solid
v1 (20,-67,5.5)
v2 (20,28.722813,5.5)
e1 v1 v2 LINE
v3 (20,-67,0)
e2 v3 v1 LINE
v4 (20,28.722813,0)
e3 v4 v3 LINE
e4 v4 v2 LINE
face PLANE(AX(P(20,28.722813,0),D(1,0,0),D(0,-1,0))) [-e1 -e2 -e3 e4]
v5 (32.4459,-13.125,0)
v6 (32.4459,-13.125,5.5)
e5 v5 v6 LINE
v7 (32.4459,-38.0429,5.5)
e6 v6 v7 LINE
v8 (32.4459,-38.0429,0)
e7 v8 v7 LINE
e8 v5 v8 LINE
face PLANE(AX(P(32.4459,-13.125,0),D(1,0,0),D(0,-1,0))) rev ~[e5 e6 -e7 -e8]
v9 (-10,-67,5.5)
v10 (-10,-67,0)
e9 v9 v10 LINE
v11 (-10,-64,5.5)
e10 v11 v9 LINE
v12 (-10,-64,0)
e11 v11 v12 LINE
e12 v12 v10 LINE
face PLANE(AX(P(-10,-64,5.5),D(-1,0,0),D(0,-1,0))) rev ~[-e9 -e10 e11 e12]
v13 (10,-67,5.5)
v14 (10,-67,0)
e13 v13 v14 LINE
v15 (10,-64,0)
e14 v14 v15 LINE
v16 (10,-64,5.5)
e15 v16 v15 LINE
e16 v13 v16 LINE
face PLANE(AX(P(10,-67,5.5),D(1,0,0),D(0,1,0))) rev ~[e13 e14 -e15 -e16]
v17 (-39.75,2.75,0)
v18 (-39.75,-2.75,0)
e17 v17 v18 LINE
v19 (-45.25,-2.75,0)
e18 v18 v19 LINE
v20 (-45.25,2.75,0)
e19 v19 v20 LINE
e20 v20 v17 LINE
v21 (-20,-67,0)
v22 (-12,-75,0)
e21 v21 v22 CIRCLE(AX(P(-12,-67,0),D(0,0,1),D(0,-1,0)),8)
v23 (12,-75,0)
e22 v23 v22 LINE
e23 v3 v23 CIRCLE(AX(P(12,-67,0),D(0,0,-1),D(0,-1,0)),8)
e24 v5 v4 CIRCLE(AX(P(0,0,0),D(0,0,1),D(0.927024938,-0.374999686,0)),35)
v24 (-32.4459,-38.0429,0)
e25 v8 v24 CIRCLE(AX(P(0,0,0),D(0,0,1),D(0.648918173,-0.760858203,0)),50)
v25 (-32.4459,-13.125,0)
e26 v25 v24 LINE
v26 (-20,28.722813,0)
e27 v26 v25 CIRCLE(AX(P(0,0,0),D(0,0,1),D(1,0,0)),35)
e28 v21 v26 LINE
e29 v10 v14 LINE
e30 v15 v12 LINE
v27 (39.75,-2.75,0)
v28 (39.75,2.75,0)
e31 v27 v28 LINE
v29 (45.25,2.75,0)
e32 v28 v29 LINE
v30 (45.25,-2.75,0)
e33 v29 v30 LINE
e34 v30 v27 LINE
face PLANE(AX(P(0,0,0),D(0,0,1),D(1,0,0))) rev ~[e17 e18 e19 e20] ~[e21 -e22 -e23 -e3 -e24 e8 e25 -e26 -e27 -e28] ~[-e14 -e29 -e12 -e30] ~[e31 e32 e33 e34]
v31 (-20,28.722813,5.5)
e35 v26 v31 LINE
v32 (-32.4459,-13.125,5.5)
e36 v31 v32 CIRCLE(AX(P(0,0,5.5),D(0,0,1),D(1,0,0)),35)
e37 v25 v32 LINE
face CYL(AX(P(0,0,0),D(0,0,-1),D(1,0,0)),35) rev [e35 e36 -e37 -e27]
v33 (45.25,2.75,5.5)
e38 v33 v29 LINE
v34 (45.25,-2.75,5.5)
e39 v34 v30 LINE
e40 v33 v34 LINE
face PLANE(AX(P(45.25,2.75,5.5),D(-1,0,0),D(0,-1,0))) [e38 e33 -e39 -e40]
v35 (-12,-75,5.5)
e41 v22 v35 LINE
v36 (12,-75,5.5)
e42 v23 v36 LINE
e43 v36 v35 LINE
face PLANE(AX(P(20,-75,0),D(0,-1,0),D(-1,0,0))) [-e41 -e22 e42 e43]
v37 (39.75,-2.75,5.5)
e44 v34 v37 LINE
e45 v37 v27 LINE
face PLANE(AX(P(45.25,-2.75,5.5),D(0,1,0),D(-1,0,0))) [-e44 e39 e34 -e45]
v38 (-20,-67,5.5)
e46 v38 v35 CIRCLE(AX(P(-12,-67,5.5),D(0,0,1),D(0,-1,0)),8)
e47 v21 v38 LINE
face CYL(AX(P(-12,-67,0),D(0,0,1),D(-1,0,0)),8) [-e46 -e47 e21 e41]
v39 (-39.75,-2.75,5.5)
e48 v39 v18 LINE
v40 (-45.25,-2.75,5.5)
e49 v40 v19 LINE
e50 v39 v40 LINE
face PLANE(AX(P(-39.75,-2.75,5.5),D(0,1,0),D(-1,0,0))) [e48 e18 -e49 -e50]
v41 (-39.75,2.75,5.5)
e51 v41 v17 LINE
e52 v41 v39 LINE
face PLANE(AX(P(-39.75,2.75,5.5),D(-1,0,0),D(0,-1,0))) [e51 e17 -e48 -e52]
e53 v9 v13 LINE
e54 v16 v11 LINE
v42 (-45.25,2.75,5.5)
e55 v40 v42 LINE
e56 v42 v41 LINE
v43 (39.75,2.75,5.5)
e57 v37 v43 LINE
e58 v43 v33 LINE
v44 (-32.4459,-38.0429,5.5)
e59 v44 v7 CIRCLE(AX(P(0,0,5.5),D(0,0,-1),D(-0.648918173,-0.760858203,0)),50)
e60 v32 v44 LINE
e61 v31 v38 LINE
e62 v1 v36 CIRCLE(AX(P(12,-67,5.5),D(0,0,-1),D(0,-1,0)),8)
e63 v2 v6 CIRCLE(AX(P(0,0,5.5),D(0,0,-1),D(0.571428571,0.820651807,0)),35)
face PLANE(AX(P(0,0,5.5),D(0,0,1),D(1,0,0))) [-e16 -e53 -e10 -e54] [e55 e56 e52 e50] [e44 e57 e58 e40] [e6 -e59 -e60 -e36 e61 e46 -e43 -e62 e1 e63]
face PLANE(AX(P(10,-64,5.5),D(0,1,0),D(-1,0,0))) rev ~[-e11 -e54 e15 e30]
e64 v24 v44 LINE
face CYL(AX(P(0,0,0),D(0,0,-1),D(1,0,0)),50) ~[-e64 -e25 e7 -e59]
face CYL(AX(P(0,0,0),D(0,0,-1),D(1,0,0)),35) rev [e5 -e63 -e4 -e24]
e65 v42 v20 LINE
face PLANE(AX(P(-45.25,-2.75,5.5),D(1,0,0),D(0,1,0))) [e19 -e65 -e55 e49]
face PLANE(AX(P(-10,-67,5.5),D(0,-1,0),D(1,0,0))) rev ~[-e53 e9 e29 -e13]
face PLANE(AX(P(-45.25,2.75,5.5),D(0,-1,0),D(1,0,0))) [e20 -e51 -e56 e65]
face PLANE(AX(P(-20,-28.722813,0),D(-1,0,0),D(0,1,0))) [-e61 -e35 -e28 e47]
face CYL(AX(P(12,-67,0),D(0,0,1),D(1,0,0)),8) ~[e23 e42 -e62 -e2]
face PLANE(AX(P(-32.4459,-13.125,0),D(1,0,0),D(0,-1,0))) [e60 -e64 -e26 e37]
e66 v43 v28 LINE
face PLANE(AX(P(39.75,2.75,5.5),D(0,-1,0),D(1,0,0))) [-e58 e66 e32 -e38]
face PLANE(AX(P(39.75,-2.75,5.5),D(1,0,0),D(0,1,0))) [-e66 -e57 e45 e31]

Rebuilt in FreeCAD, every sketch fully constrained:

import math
import FreeCAD as App
import Part
import Sketcher
from FreeCAD import Vector
Q = App.Units.Quantity


def edges_at(feature, points):
    """Names of the edges that pass closest to the given points."""
    edges = feature.Shape.Edges
    near = lambda p: min(range(len(edges)), key=lambda i: edges[i].distToShape(Part.Vertex(*p))[0])
    return sorted({f"Edge{near(p) + 1}" for p in points})


def add_polygon(sketch, points):
    """Adds a closed chain of lines whose ends are joined by coincident constraints."""
    first, n = sketch.GeometryCount, len(points)
    for a, b in zip(points, points[1:] + points[:1]):
        sketch.addGeometry(Part.LineSegment(App.Vector(*a, 0), App.Vector(*b, 0)), False)
    for i in range(n):
        sketch.addConstraint(Sketcher.Constraint("Coincident", first + i, 2, first + (i + 1) % n, 1))

doc = App.newDocument("Part")
params = doc.addObject("Spreadsheet::Sheet", "Params")
for row, (alias, value) in enumerate([
    ("sketch1_radius", "50 mm"),
    ("sketch1_radius2", "35 mm"),
    ("sketch1_width", "40 mm"),
    ("pad1_length", "5.5 mm"),
    ("fillet_radius", "8 mm"),
    ("sketch2_width", "20 mm"),
    ("sketch2_height", "3 mm"),
    ("pocket1_length", "5.5 mm"),
    ("sketch3_width", "5.5 mm"),
    ("pocket2_length", "10 mm"),
], start=1):
    params.set(f"A{row}", alias)
    params.set(f"B{row}", "=" + value)
    params.setAlias(f"B{row}", alias)

body = doc.addObject("PartDesign::Body", "Body")

# Sketch on XY plane
sketch1 = body.newObject("Sketcher::SketchObject", "Sketch")
sketch1.AttachmentSupport = (doc.getObject("XY_Plane"), [""])
sketch1.MapMode = "FlatFace"
sketch1.addGeometry([
    Part.ArcOfCircle(Part.Circle(Vector(0, 0, 0), Vector(0, 0, 1), 50), math.radians(-50), math.radians(230)),  # 0
    Part.LineSegment(Vector(-32, -38, 0), Vector(-32, -13, 0)),  # 1
    Part.ArcOfCircle(Part.Circle(Vector(0, 0, 0), Vector(0, 0, 1), 35), math.radians(125), math.radians(202)),  # 2
    Part.LineSegment(Vector(-20, 29, 0), Vector(-20, -75, 0)),  # 3
    Part.LineSegment(Vector(-20, -75, 0), Vector(20, -75, 0)),  # 4
    Part.LineSegment(Vector(20, -75, 0), Vector(20, 29, 0)),  # 5
    Part.ArcOfCircle(Part.Circle(Vector(0, 0, 0), Vector(0, 0, 1), 35), math.radians(-22), math.radians(55)),  # 6
    Part.LineSegment(Vector(32, -13, 0), Vector(32, -38, 0)),  # 7
], False)
sketch1.addConstraint([
    Sketcher.Constraint("Coincident", 0, 2, 1, 1),
    Sketcher.Constraint("Coincident", 1, 2, 2, 2),
    Sketcher.Constraint("Coincident", 2, 1, 3, 1),
    Sketcher.Constraint("Coincident", 3, 2, 4, 1),
    Sketcher.Constraint("Coincident", 4, 2, 5, 1),
    Sketcher.Constraint("Coincident", 5, 2, 6, 2),
    Sketcher.Constraint("Coincident", 6, 1, 7, 1),
    Sketcher.Constraint("Coincident", 7, 2, 0, 1),
    Sketcher.Constraint("Vertical", 1),
    Sketcher.Constraint("Vertical", 3),
    Sketcher.Constraint("Horizontal", 4),
    Sketcher.Constraint("Vertical", 5),
    Sketcher.Constraint("Vertical", 7),
    Sketcher.Constraint("Coincident", 0, 3, -1, 1),
    Sketcher.Constraint("Coincident", 2, 3, -1, 1),
    Sketcher.Constraint("Coincident", 6, 3, -1, 1),
    Sketcher.Constraint("Equal", 2, 6),
    Sketcher.Constraint("Horizontal", 2, 1, 5, 2),
    Sketcher.Constraint("Horizontal", 1, 2, 6, 1),
    Sketcher.Constraint("Radius", 0, Q("50 mm")),
    Sketcher.Constraint("Radius", 2, Q("35 mm")),
    Sketcher.Constraint("DistanceX", 4, 1, 4, 2, Q("40 mm")),
    Sketcher.Constraint("DistanceY", 3, 2, -1, 1, Q("75 mm")),
    Sketcher.Constraint("DistanceY", 1, 1, 1, 2, Q("24.918 mm")),
])
sketch1.setExpression("Constraints[19]", "Params.sketch1_radius")
sketch1.setExpression("Constraints[20]", "Params.sketch1_radius2")
sketch1.setExpression("Constraints[21]", "Params.sketch1_width")
pad1 = body.newObject("PartDesign::Pad", "Pad")
pad1.Profile = sketch1
pad1.setExpression("Length", "Params.pad1_length")
doc.recompute()

fillet = body.newObject("PartDesign::Fillet", "Fillet")
fillet.Base = (pad1, edges_at(pad1, [(20, -75, 2.75), (-20, -75, 2.75)]))
fillet.setExpression("Radius", "Params.fillet_radius")

# Sketch on XY plane
sketch2 = body.newObject("Sketcher::SketchObject", "Sketch001")
sketch2.AttachmentSupport = (doc.getObject("XY_Plane"), [""])
sketch2.MapMode = "FlatFace"
sketch2.AttachmentOffset = App.Placement(Vector(0, 0, 5.5), App.Rotation())
add_polygon(sketch2, [(-10, -64), (-10, -67), (10, -67), (10, -64)])  # lines 0-3
sketch2.addConstraint([
    Sketcher.Constraint("Vertical", 0),
    Sketcher.Constraint("Horizontal", 1),
    Sketcher.Constraint("Vertical", 2),
    Sketcher.Constraint("Horizontal", 3),
    Sketcher.Constraint("DistanceX", 1, 1, 1, 2, Q("20 mm")),
    Sketcher.Constraint("DistanceY", 0, 2, 0, 1, Q("3 mm")),
    Sketcher.Constraint("DistanceX", 0, 2, -1, 1, Q("10 mm")),
    Sketcher.Constraint("DistanceY", 0, 2, -1, 1, Q("67 mm")),
])
sketch2.setExpression("Constraints[8]", "Params.sketch2_width")
sketch2.setExpression("Constraints[9]", "Params.sketch2_height")
pocket1 = body.newObject("PartDesign::Pocket", "Pocket")
pocket1.Profile = sketch2
pocket1.setExpression("Length", "Params.pocket1_length")

# Sketch on XY plane
sketch3 = body.newObject("Sketcher::SketchObject", "Sketch002")
sketch3.AttachmentSupport = (doc.getObject("XY_Plane"), [""])
sketch3.MapMode = "FlatFace"
sketch3.AttachmentOffset = App.Placement(Vector(0, 0, 5.5), App.Rotation())
add_polygon(sketch3, [(45, 3), (40, 3), (40, -3), (45, -3)])  # lines 0-3
add_polygon(sketch3, [(-45, -3), (-40, -3), (-40, 3), (-45, 3)])  # lines 4-7
sketch3.addConstraint([
    Sketcher.Constraint("Horizontal", 0),
    Sketcher.Constraint("Vertical", 1),
    Sketcher.Constraint("Horizontal", 2),
    Sketcher.Constraint("Vertical", 3),
    Sketcher.Constraint("Horizontal", 4),
    Sketcher.Constraint("Vertical", 5),
    Sketcher.Constraint("Horizontal", 6),
    Sketcher.Constraint("Vertical", 7),
    Sketcher.Constraint("Symmetric", 0, 2, 4, 2, -1, 1),
    Sketcher.Constraint("Symmetric", 2, 2, 6, 2, -1, 1),
    Sketcher.Constraint("Horizontal", 2, 2, 4, 2),
    Sketcher.Constraint("Equal", 6, 1),
    Sketcher.Constraint("DistanceX", 0, 2, 0, 1, Q("5.5 mm")),
    Sketcher.Constraint("DistanceX", 4, 2, 2, 2, Q("85 mm")),
])
sketch3.setExpression("Constraints[20]", "Params.sketch3_width")
pocket2 = body.newObject("PartDesign::Pocket", "Pocket001")
pocket2.Profile = sketch3
pocket2.setExpression("Length", "Params.pocket2_length")

doc.recompute()
